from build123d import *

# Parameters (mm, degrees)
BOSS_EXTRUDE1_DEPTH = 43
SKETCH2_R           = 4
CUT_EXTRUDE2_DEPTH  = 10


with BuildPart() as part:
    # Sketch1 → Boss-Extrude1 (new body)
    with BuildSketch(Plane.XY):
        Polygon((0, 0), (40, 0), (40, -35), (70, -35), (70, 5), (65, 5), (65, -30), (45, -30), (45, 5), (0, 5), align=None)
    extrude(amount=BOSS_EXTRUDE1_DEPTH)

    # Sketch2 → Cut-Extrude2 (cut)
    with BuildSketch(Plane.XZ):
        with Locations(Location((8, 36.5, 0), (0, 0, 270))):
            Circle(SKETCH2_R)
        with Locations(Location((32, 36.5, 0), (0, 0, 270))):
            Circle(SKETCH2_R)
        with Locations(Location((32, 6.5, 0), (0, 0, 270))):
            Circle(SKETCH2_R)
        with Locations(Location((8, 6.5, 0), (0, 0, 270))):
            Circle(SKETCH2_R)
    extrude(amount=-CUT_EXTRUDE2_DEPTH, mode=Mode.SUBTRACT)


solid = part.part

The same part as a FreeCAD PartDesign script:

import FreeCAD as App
import Part
import Sketcher
from FreeCAD import Vector
Q = App.Units.Quantity


def add_polygon(sketch, points):
    """Adds a closed chain of lines whose ends are joined by coincident constraints."""
    first, n = sketch.GeometryCount, len(points)
    for a, b in zip(points, points[1:] + points[:1]):
        sketch.addGeometry(Part.LineSegment(App.Vector(*a, 0), App.Vector(*b, 0)), False)
    for i in range(n):
        sketch.addConstraint(Sketcher.Constraint("Coincident", first + i, 2, first + (i + 1) % n, 1))

doc = App.newDocument("Part")
params = doc.addObject("Spreadsheet::Sheet", "Params")
for row, (alias, value) in enumerate([
    ("sketch1_width", "40 mm"),
    ("sketch1_width2", "30 mm"),
    ("sketch1_width3", "5 mm"),
    ("sketch1_width4", "20 mm"),
    ("pad1_length", "43 mm"),
    ("sketch2_diameter", "8 mm"),
    ("pocket1_length", "10 mm"),
], start=1):
    params.set(f"A{row}", alias)
    params.set(f"B{row}", "=" + value)
    params.setAlias(f"B{row}", alias)

body = doc.addObject("PartDesign::Body", "Body")

# Sketch on XY plane
sketch1 = body.newObject("Sketcher::SketchObject", "Sketch")
sketch1.AttachmentSupport = (doc.getObject("XY_Plane"), [""])
sketch1.MapMode = "FlatFace"
add_polygon(sketch1, [(0, 0), (40, 0), (40, -35), (70, -35), (70, 5), (65, 5), (65, -30), (45, -30), (45, 5), (0, 5)])  # lines 0-9
sketch1.addConstraint(Sketcher.Constraint("Horizontal", 0))
sketch1.addConstraint(Sketcher.Constraint("Vertical", 1))
sketch1.addConstraint(Sketcher.Constraint("Horizontal", 2))
sketch1.addConstraint(Sketcher.Constraint("Vertical", 3))
sketch1.addConstraint(Sketcher.Constraint("Horizontal", 4))
sketch1.addConstraint(Sketcher.Constraint("Vertical", 5))
sketch1.addConstraint(Sketcher.Constraint("Horizontal", 6))
sketch1.addConstraint(Sketcher.Constraint("Vertical", 7))
sketch1.addConstraint(Sketcher.Constraint("Horizontal", 8))
sketch1.addConstraint(Sketcher.Constraint("Vertical", 9))
sketch1.addConstraint(Sketcher.Constraint("Coincident", 9, 2, -1, 1))
sketch1.addConstraint(Sketcher.Constraint("Horizontal", 4, 2, 7, 2))
sketch1.addConstraint(Sketcher.Constraint("Equal", 0, 3))
sketch1.addConstraint(Sketcher.Constraint("Equal", 1, 5))
sketch1.addConstraint(Sketcher.Constraint("Equal", 4, 9))
sketch1.addConstraint(Sketcher.Constraint("DistanceX", 0, 1, 0, 2, Q("40 mm")))
sketch1.addConstraint(Sketcher.Constraint("DistanceX", 2, 1, 2, 2, Q("30 mm")))
sketch1.addConstraint(Sketcher.Constraint("DistanceX", 4, 2, 4, 1, Q("5 mm")))
sketch1.addConstraint(Sketcher.Constraint("DistanceX", 6, 2, 6, 1, Q("20 mm")))
sketch1.setExpression("Constraints[25]", "Params.sketch1_width")
sketch1.setExpression("Constraints[26]", "Params.sketch1_width2")
sketch1.setExpression("Constraints[27]", "Params.sketch1_width3")
sketch1.setExpression("Constraints[28]", "Params.sketch1_width4")
pad1 = body.newObject("PartDesign::Pad", "Pad")
pad1.Profile = sketch1
pad1.setExpression("Length", "Params.pad1_length")

# Sketch on XZ plane
sketch2 = body.newObject("Sketcher::SketchObject", "Sketch001")
sketch2.AttachmentSupport = (doc.getObject("XZ_Plane"), [""])
sketch2.MapMode = "FlatFace"
sketch2.addGeometry(Part.Circle(Vector(8, 36.5, 0), Vector(0, 0, 1), 4), False)
sketch2.addGeometry(Part.Circle(Vector(32, 36.5, 0), Vector(0, 0, 1), 4), False)
sketch2.addGeometry(Part.Circle(Vector(32, 6.5, 0), Vector(0, 0, 1), 4), False)
sketch2.addGeometry(Part.Circle(Vector(8, 6.5, 0), Vector(0, 0, 1), 4), False)
sketch2.addConstraint(Sketcher.Constraint("Equal", 0, 1))
sketch2.addConstraint(Sketcher.Constraint("Equal", 1, 2))
sketch2.addConstraint(Sketcher.Constraint("Equal", 2, 3))
sketch2.addConstraint(Sketcher.Constraint("Horizontal", 0, 3, 1, 3))
sketch2.addConstraint(Sketcher.Constraint("Horizontal", 2, 3, 3, 3))
sketch2.addConstraint(Sketcher.Constraint("Vertical", 1, 3, 2, 3))
sketch2.addConstraint(Sketcher.Constraint("Vertical", 0, 3, 3, 3))
sketch2.addConstraint(Sketcher.Constraint("Diameter", 0, Q("8 mm")))
sketch2.addConstraint(Sketcher.Constraint("DistanceX", -1, 1, 0, 3, Q("8 mm")))
sketch2.addConstraint(Sketcher.Constraint("DistanceX", -1, 1, 1, 3, Q("32 mm")))
sketch2.addConstraint(Sketcher.Constraint("DistanceY", 2, 3, 1, 3, Q("30 mm")))
sketch2.addConstraint(Sketcher.Constraint("DistanceY", -1, 1, 0, 3, Q("36.5 mm")))
sketch2.setExpression("Constraints[7]", "Params.sketch2_diameter")
pocket1 = body.newObject("PartDesign::Pocket", "Pocket")
pocket1.Profile = sketch2
pocket1.setExpression("Length", "Params.pocket1_length")

doc.recompute()
